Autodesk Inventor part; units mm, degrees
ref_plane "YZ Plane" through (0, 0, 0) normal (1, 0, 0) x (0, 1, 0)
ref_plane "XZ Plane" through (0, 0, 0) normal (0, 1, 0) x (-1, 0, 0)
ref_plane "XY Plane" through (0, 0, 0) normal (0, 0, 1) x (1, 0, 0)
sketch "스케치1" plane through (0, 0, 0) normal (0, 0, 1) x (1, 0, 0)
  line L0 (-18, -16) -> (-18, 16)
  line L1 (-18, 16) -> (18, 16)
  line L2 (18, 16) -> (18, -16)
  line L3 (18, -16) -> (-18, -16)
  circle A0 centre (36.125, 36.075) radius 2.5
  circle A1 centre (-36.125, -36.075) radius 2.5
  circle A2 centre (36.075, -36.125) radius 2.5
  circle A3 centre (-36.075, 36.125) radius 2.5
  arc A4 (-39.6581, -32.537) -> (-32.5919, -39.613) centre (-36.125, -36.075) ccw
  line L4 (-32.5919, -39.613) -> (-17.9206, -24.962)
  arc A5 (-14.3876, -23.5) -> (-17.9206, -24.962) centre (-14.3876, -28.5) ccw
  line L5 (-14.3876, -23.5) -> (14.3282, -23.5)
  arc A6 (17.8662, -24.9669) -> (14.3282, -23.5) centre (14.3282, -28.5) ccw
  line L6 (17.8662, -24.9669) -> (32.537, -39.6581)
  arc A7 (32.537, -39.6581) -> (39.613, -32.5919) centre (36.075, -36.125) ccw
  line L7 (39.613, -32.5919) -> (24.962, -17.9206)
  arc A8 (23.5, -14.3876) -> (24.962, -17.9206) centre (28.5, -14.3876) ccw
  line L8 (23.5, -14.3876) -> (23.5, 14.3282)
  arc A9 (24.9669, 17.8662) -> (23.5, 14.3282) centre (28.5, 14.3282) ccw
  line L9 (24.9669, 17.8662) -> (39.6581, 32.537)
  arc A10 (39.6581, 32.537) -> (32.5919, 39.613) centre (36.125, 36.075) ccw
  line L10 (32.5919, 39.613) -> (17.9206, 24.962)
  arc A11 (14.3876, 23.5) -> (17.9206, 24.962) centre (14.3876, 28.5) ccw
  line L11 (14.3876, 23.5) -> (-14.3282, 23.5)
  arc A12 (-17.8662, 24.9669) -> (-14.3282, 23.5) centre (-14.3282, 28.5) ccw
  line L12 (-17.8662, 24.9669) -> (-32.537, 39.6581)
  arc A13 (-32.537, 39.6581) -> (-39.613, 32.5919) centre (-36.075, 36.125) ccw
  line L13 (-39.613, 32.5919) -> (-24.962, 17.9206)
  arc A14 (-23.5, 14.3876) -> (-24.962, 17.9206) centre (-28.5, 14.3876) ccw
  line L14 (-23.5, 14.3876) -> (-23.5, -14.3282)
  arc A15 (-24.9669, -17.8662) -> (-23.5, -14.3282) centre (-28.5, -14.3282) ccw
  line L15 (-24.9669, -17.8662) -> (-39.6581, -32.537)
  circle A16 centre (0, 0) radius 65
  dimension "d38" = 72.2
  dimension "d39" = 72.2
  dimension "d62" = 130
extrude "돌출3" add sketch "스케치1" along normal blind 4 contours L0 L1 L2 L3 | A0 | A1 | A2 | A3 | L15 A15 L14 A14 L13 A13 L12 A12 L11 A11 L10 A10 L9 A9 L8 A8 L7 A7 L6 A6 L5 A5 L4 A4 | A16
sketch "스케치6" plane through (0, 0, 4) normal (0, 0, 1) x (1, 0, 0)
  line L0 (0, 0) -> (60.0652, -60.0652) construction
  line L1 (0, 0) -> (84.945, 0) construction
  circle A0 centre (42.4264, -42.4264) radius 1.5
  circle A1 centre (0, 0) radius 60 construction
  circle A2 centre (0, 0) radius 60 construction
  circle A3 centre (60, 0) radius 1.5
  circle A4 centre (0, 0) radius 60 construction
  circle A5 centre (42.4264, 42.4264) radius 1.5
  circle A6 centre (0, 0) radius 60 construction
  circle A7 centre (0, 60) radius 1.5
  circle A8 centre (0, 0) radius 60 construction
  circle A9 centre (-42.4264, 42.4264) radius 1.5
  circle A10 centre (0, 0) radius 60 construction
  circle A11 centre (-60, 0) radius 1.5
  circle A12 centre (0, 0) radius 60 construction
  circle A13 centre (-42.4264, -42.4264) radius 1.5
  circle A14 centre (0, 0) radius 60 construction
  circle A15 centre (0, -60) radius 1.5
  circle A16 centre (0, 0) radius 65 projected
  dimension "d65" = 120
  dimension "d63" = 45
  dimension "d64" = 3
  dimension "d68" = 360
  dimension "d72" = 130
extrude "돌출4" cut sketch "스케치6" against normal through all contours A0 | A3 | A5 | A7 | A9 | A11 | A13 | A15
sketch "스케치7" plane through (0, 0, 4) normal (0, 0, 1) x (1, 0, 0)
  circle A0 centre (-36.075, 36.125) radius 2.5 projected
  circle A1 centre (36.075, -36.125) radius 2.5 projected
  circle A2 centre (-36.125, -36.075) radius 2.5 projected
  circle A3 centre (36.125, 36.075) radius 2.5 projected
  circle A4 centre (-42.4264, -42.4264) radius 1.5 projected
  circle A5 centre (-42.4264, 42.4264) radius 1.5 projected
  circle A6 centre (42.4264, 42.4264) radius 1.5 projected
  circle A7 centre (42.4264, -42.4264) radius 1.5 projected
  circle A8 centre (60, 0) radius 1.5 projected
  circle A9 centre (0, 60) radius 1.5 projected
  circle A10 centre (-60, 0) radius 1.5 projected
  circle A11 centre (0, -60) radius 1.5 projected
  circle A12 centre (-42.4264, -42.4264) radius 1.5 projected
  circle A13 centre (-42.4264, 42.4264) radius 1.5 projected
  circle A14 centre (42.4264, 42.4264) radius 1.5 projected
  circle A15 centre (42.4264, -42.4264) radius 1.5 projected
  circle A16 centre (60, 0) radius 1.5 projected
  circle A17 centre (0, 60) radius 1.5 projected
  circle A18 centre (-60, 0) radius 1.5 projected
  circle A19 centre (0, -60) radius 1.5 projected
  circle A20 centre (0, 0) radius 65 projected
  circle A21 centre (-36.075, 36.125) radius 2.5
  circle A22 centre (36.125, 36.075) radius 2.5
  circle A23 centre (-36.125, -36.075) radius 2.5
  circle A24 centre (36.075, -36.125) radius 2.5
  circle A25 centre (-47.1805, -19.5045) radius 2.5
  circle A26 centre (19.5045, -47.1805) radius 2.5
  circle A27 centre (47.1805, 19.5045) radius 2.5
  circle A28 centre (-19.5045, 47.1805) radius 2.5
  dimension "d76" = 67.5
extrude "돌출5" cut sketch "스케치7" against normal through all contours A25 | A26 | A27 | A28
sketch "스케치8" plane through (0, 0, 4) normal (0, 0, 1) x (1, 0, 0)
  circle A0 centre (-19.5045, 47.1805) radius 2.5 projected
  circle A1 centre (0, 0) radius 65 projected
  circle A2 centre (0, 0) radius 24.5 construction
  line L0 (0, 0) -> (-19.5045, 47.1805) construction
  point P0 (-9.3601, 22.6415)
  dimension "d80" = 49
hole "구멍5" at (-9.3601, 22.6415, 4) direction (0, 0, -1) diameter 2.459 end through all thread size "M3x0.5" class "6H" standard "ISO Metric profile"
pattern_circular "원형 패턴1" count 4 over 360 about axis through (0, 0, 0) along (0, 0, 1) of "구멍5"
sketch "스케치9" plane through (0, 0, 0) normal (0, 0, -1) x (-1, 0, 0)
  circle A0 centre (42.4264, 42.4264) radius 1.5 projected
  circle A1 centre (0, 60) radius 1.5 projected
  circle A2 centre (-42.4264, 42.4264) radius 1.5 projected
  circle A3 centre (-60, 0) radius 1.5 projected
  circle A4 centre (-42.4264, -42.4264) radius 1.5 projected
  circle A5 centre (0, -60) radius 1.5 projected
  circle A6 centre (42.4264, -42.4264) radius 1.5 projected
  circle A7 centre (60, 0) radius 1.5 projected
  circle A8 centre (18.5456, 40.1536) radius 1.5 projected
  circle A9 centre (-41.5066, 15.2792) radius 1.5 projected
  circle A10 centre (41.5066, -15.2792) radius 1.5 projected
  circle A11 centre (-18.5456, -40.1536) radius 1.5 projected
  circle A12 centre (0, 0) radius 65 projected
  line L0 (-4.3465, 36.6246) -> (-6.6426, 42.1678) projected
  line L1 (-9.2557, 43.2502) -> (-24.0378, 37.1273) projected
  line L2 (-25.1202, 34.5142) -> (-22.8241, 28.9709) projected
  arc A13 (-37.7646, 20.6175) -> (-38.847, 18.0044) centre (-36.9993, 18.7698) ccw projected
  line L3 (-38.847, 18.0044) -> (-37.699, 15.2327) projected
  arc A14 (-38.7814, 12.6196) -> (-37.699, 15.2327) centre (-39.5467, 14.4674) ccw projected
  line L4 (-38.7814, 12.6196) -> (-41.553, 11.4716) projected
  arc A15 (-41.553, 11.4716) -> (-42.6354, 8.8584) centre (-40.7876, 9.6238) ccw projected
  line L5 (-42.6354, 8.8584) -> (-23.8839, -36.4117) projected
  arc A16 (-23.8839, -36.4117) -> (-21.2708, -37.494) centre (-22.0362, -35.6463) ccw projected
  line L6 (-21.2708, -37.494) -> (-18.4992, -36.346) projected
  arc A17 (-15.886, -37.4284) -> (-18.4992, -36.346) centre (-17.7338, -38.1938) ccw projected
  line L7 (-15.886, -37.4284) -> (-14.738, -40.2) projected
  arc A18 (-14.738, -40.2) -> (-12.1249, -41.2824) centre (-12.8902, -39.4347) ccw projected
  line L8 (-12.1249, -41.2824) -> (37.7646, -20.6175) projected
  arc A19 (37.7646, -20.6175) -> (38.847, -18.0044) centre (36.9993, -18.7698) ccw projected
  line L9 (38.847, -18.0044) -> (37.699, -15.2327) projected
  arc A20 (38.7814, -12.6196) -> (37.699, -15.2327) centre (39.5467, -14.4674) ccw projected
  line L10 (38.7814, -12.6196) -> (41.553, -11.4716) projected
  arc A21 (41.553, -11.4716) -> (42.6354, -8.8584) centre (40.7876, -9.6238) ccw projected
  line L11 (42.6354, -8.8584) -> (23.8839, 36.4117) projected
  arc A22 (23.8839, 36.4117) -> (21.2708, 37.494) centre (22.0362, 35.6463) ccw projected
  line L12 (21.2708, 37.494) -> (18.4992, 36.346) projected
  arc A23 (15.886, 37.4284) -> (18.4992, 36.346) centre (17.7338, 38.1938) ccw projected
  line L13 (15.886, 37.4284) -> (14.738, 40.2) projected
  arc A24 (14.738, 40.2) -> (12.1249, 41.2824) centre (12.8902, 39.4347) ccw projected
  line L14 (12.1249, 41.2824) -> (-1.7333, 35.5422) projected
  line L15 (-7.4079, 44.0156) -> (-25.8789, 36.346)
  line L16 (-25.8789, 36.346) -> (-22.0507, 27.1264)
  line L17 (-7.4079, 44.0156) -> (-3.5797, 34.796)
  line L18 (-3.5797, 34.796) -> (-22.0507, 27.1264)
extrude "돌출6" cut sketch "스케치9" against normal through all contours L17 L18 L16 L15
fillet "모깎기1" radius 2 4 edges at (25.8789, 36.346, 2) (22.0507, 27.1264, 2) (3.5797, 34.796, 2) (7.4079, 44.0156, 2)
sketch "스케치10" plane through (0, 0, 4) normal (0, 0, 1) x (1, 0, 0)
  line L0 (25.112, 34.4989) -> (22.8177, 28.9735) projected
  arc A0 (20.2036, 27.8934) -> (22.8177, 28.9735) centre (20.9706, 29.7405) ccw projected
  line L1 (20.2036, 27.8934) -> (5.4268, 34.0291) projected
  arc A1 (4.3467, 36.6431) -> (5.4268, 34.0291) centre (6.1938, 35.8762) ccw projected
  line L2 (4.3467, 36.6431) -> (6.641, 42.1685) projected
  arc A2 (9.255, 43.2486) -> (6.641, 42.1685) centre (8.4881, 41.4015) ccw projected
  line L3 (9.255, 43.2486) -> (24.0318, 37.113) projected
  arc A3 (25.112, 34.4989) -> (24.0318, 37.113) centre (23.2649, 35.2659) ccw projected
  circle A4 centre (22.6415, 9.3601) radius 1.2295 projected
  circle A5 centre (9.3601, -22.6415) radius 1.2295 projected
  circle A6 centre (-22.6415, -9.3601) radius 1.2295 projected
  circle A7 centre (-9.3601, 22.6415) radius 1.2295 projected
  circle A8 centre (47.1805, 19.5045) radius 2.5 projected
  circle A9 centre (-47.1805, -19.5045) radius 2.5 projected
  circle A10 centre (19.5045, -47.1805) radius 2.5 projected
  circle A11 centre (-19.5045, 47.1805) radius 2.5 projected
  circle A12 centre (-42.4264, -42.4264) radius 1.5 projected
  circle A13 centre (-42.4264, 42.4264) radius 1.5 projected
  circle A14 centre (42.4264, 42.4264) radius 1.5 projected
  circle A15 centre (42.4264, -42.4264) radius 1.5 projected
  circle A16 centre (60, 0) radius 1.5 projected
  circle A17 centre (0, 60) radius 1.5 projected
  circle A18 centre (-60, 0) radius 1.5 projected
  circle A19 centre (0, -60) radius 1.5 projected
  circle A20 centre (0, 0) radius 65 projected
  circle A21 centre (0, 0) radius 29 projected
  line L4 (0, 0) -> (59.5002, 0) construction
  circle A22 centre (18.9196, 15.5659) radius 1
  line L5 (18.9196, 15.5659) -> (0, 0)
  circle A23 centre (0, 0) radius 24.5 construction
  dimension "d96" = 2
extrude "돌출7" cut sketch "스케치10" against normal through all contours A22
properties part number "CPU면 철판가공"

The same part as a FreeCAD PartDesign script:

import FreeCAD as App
import Part
import Sketcher
from FreeCAD import Vector
Q = App.Units.Quantity


def edges_at(feature, points):
    """Names of the edges that pass closest to the given points."""
    edges = feature.Shape.Edges
    near = lambda p: min(range(len(edges)), key=lambda i: edges[i].distToShape(Part.Vertex(*p))[0])
    return sorted({f"Edge{near(p) + 1}" for p in points})

doc = App.newDocument("Part")
body = doc.addObject("PartDesign::Body", "Body")

# Sketch on XY plane
sketch1 = body.newObject("Sketcher::SketchObject", "Sketch")
sketch1.AttachmentSupport = (doc.getObject("XY_Plane"), [""])
sketch1.MapMode = "FlatFace"
sketch1.addGeometry(Part.Circle(Vector(0, 0, 0), Vector(0, 0, 1), 65), False)
sketch1.addConstraint(Sketcher.Constraint("Coincident", 0, 3, -1, 1))
sketch1.addConstraint(Sketcher.Constraint("Diameter", 0, 130.0))
pad1 = body.newObject("PartDesign::Pad", "Pad")
pad1.Profile = sketch1
pad1.Length = 4

# Sketch on XY plane
sketch2 = body.newObject("Sketcher::SketchObject", "Sketch001")
sketch2.AttachmentSupport = (doc.getObject("XY_Plane"), [""])
sketch2.MapMode = "FlatFace"
sketch2.AttachmentOffset = App.Placement(Vector(0, 0, 4), App.Rotation())
sketch2.addGeometry(Part.Circle(Vector(42.4, -42.4, 0), Vector(0, 0, 1), 1.5), False)
sketch2.addGeometry(Part.Circle(Vector(60, 0, 0), Vector(0, 0, 1), 1.5), False)
sketch2.addGeometry(Part.Circle(Vector(42.4, 42.4, 0), Vector(0, 0, 1), 1.5), False)
sketch2.addGeometry(Part.Circle(Vector(0, 60, 0), Vector(0, 0, 1), 1.5), False)
sketch2.addGeometry(Part.Circle(Vector(-42.4, 42.4, 0), Vector(0, 0, 1), 1.5), False)
sketch2.addGeometry(Part.Circle(Vector(-60, 0, 0), Vector(0, 0, 1), 1.5), False)
sketch2.addGeometry(Part.Circle(Vector(-42.4, -42.4, 0), Vector(0, 0, 1), 1.5), False)
sketch2.addGeometry(Part.Circle(Vector(0, -60, 0), Vector(0, 0, 1), 1.5), False)
sketch2.addConstraint(Sketcher.Constraint("Equal", 0, 1))
sketch2.addConstraint(Sketcher.Constraint("Equal", 1, 2))
sketch2.addConstraint(Sketcher.Constraint("Equal", 2, 3))
sketch2.addConstraint(Sketcher.Constraint("Equal", 3, 4))
sketch2.addConstraint(Sketcher.Constraint("Equal", 4, 5))
sketch2.addConstraint(Sketcher.Constraint("Equal", 5, 6))
sketch2.addConstraint(Sketcher.Constraint("Equal", 6, 7))
sketch2.addConstraint(Sketcher.Constraint("Symmetric", 0, 3, 4, 3, -1, 1))
sketch2.addConstraint(Sketcher.Constraint("Symmetric", 1, 3, 5, 3, -1, 1))
sketch2.addConstraint(Sketcher.Constraint("Symmetric", 2, 3, 6, 3, -1, 1))
sketch2.addConstraint(Sketcher.Constraint("Symmetric", 3, 3, 7, 3, -1, 1))
sketch2.addConstraint(Sketcher.Constraint("Symmetric", 2, 3, 4, 3, -2))
sketch2.addConstraint(Sketcher.Constraint("PointOnObject", 1, 3, -1))
sketch2.addConstraint(Sketcher.Constraint("PointOnObject", 3, 3, -2))
sketch2.addConstraint(Sketcher.Constraint("Diameter", 0, 3.0))
sketch2.addConstraint(Sketcher.Constraint("DistanceX", 5, 3, 1, 3, 120.0))
sketch2.addConstraint(Sketcher.Constraint("DistanceY", -1, 1, 3, 3, 60.0))
sketch2.addConstraint(Sketcher.Constraint("DistanceX", -1, 1, 0, 3, 42.4264))
sketch2.addConstraint(Sketcher.Constraint("DistanceY", 0, 3, -1, 1, 42.4264))
pocket1 = body.newObject("PartDesign::Pocket", "Pocket")
pocket1.Profile = sketch2
pocket1.Type = "ThroughAll"

# Sketch on XY plane
sketch3 = body.newObject("Sketcher::SketchObject", "Sketch002")
sketch3.AttachmentSupport = (doc.getObject("XY_Plane"), [""])
sketch3.MapMode = "FlatFace"
sketch3.AttachmentOffset = App.Placement(Vector(0, 0, 4), App.Rotation())
sketch3.addGeometry(Part.Circle(Vector(-47.2, -19.5, 0), Vector(0, 0, 1), 2.5), False)
sketch3.addGeometry(Part.Circle(Vector(19.5, -47.2, 0), Vector(0, 0, 1), 2.5), False)
sketch3.addGeometry(Part.Circle(Vector(47.2, 19.5, 0), Vector(0, 0, 1), 2.5), False)
sketch3.addGeometry(Part.Circle(Vector(-19.5, 47.2, 0), Vector(0, 0, 1), 2.5), False)
sketch3.addConstraint(Sketcher.Constraint("Equal", 0, 1))
sketch3.addConstraint(Sketcher.Constraint("Equal", 1, 2))
sketch3.addConstraint(Sketcher.Constraint("Equal", 2, 3))
sketch3.addConstraint(Sketcher.Constraint("Symmetric", 0, 3, 2, 3, -1, 1))
sketch3.addConstraint(Sketcher.Constraint("Symmetric", 1, 3, 3, 3, -1, 1))
sketch3.addConstraint(Sketcher.Constraint("Diameter", 0, 5.0))
sketch3.addConstraint(Sketcher.Constraint("DistanceX", 0, 3, 1, 3, 66.685))
sketch3.addConstraint(Sketcher.Constraint("DistanceY", 1, 3, 0, 3, 27.676))
sketch3.addConstraint(Sketcher.Constraint("DistanceX", 1, 3, 2, 3, 27.676))
sketch3.addConstraint(Sketcher.Constraint("DistanceY", 1, 3, 2, 3, 66.685))
pocket2 = body.newObject("PartDesign::Pocket", "Pocket001")
pocket2.Profile = sketch3
pocket2.Type = "ThroughAll"

# Sketch on XY plane
sketch4 = body.newObject("Sketcher::SketchObject", "Sketch003")
sketch4.AttachmentSupport = (doc.getObject("XY_Plane"), [""])
sketch4.MapMode = "FlatFace"
sketch4.AttachmentOffset = App.Placement(Vector(0, 0, 4), App.Rotation())
sketch4.addGeometry(Part.Circle(Vector(-9.4, 22.6, 0), Vector(0, 0, 1), 1.2), False)
sketch4.addConstraint(Sketcher.Constraint("Diameter", 0, 2.459))
sketch4.addConstraint(Sketcher.Constraint("DistanceX", 0, 3, -1, 1, 9.36))
sketch4.addConstraint(Sketcher.Constraint("DistanceY", -1, 1, 0, 3, 22.6415))
doc.recompute()
hole = body.newObject("PartDesign::Hole", "Hole")
hole.Profile = sketch4
hole.ThreadType = "None"
hole.Diameter = 2.459
hole.DepthType = "ThroughAll"
doc.recompute()

polarpattern = body.newObject("PartDesign::PolarPattern", "PolarPattern")
polarpattern.Originals = [hole]
polarpattern.Axis = (doc.getObject("Z_Axis"), [""])
polarpattern.Angle = 360
polarpattern.Occurrences = 4
body.Tip = polarpattern

# Sketch on XY plane
sketch5 = body.newObject("Sketcher::SketchObject", "Sketch004")
sketch5.AttachmentSupport = (doc.getObject("XY_Plane"), [""])
sketch5.MapMode = "FlatFace"
sketch5.addGeometry(Part.LineSegment(Vector(4, 35, 0), Vector(7, 44, 0)), False)
sketch5.addGeometry(Part.LineSegment(Vector(7, 44, 0), Vector(26, 36, 0)), False)
sketch5.addGeometry(Part.LineSegment(Vector(26, 36, 0), Vector(22, 27, 0)), False)
sketch5.addGeometry(Part.LineSegment(Vector(22, 27, 0), Vector(4, 35, 0)), False)
sketch5.addConstraint(Sketcher.Constraint("Coincident", 0, 2, 1, 1))
sketch5.addConstraint(Sketcher.Constraint("Coincident", 1, 2, 2, 1))
sketch5.addConstraint(Sketcher.Constraint("Coincident", 2, 2, 3, 1))
sketch5.addConstraint(Sketcher.Constraint("Coincident", 3, 2, 0, 1))
sketch5.addConstraint(Sketcher.Constraint("Perpendicular", 0, 1))
sketch5.addConstraint(Sketcher.Constraint("Perpendicular", 1, 2))
sketch5.addConstraint(Sketcher.Constraint("Perpendicular", 2, 3))
sketch5.addConstraint(Sketcher.Constraint("Distance", 1, 20.0))
sketch5.addConstraint(Sketcher.Constraint("Angle", 0, Q("67.4506 deg")))
sketch5.addConstraint(Sketcher.Constraint("DistanceY", 3, 2, 1, 2, 1.55))
sketch5.addConstraint(Sketcher.Constraint("DistanceX", -1, 1, 0, 2, 7.408))
sketch5.addConstraint(Sketcher.Constraint("DistanceY", -1, 1, 1, 2, 36.346))
pocket3 = body.newObject("PartDesign::Pocket", "Pocket002")
pocket3.Profile = sketch5
pocket3.Type = "ThroughAll"
pocket3.Reversed = True
doc.recompute()

fillet = body.newObject("PartDesign::Fillet", "Fillet")
fillet.Base = (pocket3, edges_at(pocket3, [
    (25.879, 36.346, 2),
    (22.051, 27.126, 2),
    (3.58, 34.796, 2),
    (7.408, 44.016, 2),
]))
fillet.Radius = 2

# Sketch on XY plane
sketch6 = body.newObject("Sketcher::SketchObject", "Sketch005")
sketch6.AttachmentSupport = (doc.getObject("XY_Plane"), [""])
sketch6.MapMode = "FlatFace"
sketch6.AttachmentOffset = App.Placement(Vector(0, 0, 4), App.Rotation())
sketch6.addGeometry(Part.Circle(Vector(18.9, 15.6, 0), Vector(0, 0, 1), 1), False)
sketch6.addConstraint(Sketcher.Constraint("Diameter", 0, 2.0))
sketch6.addConstraint(Sketcher.Constraint("DistanceY", -1, 1, 0, 3, 15.566))
sketch6.addConstraint(Sketcher.Constraint("DistanceX", -1, 1, 0, 3, 18.9196))
pocket4 = body.newObject("PartDesign::Pocket", "Pocket003")
pocket4.Profile = sketch6
pocket4.Type = "ThroughAll"

doc.recompute()
